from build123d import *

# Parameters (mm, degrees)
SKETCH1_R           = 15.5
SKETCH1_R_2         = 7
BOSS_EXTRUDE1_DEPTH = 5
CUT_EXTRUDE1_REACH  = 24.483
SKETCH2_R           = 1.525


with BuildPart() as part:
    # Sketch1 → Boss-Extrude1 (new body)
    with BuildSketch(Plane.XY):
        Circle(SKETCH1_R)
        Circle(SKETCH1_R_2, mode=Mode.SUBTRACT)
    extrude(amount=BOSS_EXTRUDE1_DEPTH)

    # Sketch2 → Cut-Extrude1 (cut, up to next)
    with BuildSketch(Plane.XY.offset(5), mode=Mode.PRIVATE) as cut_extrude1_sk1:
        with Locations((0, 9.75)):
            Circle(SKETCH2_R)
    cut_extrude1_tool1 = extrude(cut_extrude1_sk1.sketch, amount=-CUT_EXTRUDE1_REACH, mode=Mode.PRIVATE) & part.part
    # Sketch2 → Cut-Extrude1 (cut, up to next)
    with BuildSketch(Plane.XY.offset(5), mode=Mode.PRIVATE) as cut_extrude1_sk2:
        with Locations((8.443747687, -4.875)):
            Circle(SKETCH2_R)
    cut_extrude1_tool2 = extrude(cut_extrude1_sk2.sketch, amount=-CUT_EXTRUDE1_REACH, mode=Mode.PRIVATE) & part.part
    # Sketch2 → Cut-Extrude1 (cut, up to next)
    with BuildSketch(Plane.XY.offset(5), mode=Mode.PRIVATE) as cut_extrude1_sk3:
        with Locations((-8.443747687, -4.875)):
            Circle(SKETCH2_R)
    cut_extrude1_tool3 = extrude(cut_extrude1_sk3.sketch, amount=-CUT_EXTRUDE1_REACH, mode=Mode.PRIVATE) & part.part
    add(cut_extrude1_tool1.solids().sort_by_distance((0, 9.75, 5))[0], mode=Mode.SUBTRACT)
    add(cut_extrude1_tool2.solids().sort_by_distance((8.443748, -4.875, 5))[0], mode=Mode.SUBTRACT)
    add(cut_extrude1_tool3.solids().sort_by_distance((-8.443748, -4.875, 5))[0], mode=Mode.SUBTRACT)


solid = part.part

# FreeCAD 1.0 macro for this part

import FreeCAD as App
import Part
import Sketcher
Q = App.Units.Quantity

doc = App.newDocument("Part")
params = doc.addObject("Spreadsheet::Sheet", "Params")
for row, (alias, value) in enumerate([
    ("sketch1_diameter", "31 mm"),
    ("sketch1_diameter2", "14 mm"),
    ("pad1_length", "5 mm"),
    ("sketch2_diameter", "3.05 mm"),
    ("sketch3_diameter", "3.05 mm"),
    ("sketch4_diameter", "3.05 mm"),
], start=1):
    params.set(f"A{row}", alias)
    params.set(f"B{row}", "=" + value)
    params.setAlias(f"B{row}", alias)

body = doc.addObject("PartDesign::Body", "Body")

sketch1 = body.newObject("Sketcher::SketchObject", "Sketch")
sketch1.AttachmentSupport = (doc.getObject("XY_Plane"), [""])
sketch1.MapMode = "FlatFace"
sketch1.addGeometry(Part.Circle(App.Vector(0, 0, 0), App.Vector(0, 0, 1), 15.5), False)
sketch1.addGeometry(Part.Circle(App.Vector(0, 0, 0), App.Vector(0, 0, 1), 7), False)
sketch1.addConstraint(Sketcher.Constraint("Coincident", 0, 3, -1, 1))
sketch1.addConstraint(Sketcher.Constraint("Coincident", 1, 3, -1, 1))
sketch1.addConstraint(Sketcher.Constraint("Diameter", 0, Q("31 mm")))
sketch1.addConstraint(Sketcher.Constraint("Diameter", 1, Q("14 mm")))
sketch1.setExpression("Constraints[2]", "Params.sketch1_diameter")
sketch1.setExpression("Constraints[3]", "Params.sketch1_diameter2")
pad1 = body.newObject("PartDesign::Pad", "Pad")
pad1.Profile = sketch1
pad1.setExpression("Length", "Params.pad1_length")

sketch2 = body.newObject("Sketcher::SketchObject", "Sketch001")
sketch2.AttachmentSupport = (doc.getObject("XY_Plane"), [""])
sketch2.MapMode = "FlatFace"
sketch2.AttachmentOffset = App.Placement(App.Vector(0, 0, 5), App.Rotation())
sketch2.addGeometry(Part.Circle(App.Vector(0, 9.75, 0), App.Vector(0, 0, 1), 1.525), False)
sketch2.addConstraint(Sketcher.Constraint("PointOnObject", 0, 3, -2))
sketch2.addConstraint(Sketcher.Constraint("Diameter", 0, Q("3.05 mm")))
sketch2.addConstraint(Sketcher.Constraint("DistanceY", -1, 1, 0, 3, Q("9.75 mm")))
sketch2.setExpression("Constraints[1]", "Params.sketch2_diameter")
pocket1 = body.newObject("PartDesign::Pocket", "Pocket")
pocket1.Profile = sketch2
pocket1.Type = "UpToFirst"

sketch3 = body.newObject("Sketcher::SketchObject", "Sketch002")
sketch3.AttachmentSupport = (doc.getObject("XY_Plane"), [""])
sketch3.MapMode = "FlatFace"
sketch3.AttachmentOffset = App.Placement(App.Vector(0, 0, 5), App.Rotation())
sketch3.addGeometry(Part.Circle(App.Vector(8.443748, -4.875, 0), App.Vector(0, 0, 1), 1.525), False)
sketch3.addConstraint(Sketcher.Constraint("Diameter", 0, Q("3.05 mm")))
sketch3.addConstraint(Sketcher.Constraint("DistanceY", 0, 3, -1, 1, Q("4.875 mm")))
sketch3.addConstraint(Sketcher.Constraint("DistanceX", -1, 1, 0, 3, Q("8.443748 mm")))
sketch3.setExpression("Constraints[0]", "Params.sketch3_diameter")
pocket2 = body.newObject("PartDesign::Pocket", "Pocket001")
pocket2.Profile = sketch3
pocket2.Type = "UpToFirst"

sketch4 = body.newObject("Sketcher::SketchObject", "Sketch003")
sketch4.AttachmentSupport = (doc.getObject("XY_Plane"), [""])
sketch4.MapMode = "FlatFace"
sketch4.AttachmentOffset = App.Placement(App.Vector(0, 0, 5), App.Rotation())
sketch4.addGeometry(Part.Circle(App.Vector(-8.443748, -4.875, 0), App.Vector(0, 0, 1), 1.525), False)
sketch4.addConstraint(Sketcher.Constraint("Diameter", 0, Q("3.05 mm")))
sketch4.addConstraint(Sketcher.Constraint("DistanceY", 0, 3, -1, 1, Q("4.875 mm")))
sketch4.addConstraint(Sketcher.Constraint("DistanceX", 0, 3, -1, 1, Q("8.443748 mm")))
sketch4.setExpression("Constraints[0]", "Params.sketch4_diameter")
pocket3 = body.newObject("PartDesign::Pocket", "Pocket002")
pocket3.Profile = sketch4
pocket3.Type = "UpToFirst"

doc.recompute()
